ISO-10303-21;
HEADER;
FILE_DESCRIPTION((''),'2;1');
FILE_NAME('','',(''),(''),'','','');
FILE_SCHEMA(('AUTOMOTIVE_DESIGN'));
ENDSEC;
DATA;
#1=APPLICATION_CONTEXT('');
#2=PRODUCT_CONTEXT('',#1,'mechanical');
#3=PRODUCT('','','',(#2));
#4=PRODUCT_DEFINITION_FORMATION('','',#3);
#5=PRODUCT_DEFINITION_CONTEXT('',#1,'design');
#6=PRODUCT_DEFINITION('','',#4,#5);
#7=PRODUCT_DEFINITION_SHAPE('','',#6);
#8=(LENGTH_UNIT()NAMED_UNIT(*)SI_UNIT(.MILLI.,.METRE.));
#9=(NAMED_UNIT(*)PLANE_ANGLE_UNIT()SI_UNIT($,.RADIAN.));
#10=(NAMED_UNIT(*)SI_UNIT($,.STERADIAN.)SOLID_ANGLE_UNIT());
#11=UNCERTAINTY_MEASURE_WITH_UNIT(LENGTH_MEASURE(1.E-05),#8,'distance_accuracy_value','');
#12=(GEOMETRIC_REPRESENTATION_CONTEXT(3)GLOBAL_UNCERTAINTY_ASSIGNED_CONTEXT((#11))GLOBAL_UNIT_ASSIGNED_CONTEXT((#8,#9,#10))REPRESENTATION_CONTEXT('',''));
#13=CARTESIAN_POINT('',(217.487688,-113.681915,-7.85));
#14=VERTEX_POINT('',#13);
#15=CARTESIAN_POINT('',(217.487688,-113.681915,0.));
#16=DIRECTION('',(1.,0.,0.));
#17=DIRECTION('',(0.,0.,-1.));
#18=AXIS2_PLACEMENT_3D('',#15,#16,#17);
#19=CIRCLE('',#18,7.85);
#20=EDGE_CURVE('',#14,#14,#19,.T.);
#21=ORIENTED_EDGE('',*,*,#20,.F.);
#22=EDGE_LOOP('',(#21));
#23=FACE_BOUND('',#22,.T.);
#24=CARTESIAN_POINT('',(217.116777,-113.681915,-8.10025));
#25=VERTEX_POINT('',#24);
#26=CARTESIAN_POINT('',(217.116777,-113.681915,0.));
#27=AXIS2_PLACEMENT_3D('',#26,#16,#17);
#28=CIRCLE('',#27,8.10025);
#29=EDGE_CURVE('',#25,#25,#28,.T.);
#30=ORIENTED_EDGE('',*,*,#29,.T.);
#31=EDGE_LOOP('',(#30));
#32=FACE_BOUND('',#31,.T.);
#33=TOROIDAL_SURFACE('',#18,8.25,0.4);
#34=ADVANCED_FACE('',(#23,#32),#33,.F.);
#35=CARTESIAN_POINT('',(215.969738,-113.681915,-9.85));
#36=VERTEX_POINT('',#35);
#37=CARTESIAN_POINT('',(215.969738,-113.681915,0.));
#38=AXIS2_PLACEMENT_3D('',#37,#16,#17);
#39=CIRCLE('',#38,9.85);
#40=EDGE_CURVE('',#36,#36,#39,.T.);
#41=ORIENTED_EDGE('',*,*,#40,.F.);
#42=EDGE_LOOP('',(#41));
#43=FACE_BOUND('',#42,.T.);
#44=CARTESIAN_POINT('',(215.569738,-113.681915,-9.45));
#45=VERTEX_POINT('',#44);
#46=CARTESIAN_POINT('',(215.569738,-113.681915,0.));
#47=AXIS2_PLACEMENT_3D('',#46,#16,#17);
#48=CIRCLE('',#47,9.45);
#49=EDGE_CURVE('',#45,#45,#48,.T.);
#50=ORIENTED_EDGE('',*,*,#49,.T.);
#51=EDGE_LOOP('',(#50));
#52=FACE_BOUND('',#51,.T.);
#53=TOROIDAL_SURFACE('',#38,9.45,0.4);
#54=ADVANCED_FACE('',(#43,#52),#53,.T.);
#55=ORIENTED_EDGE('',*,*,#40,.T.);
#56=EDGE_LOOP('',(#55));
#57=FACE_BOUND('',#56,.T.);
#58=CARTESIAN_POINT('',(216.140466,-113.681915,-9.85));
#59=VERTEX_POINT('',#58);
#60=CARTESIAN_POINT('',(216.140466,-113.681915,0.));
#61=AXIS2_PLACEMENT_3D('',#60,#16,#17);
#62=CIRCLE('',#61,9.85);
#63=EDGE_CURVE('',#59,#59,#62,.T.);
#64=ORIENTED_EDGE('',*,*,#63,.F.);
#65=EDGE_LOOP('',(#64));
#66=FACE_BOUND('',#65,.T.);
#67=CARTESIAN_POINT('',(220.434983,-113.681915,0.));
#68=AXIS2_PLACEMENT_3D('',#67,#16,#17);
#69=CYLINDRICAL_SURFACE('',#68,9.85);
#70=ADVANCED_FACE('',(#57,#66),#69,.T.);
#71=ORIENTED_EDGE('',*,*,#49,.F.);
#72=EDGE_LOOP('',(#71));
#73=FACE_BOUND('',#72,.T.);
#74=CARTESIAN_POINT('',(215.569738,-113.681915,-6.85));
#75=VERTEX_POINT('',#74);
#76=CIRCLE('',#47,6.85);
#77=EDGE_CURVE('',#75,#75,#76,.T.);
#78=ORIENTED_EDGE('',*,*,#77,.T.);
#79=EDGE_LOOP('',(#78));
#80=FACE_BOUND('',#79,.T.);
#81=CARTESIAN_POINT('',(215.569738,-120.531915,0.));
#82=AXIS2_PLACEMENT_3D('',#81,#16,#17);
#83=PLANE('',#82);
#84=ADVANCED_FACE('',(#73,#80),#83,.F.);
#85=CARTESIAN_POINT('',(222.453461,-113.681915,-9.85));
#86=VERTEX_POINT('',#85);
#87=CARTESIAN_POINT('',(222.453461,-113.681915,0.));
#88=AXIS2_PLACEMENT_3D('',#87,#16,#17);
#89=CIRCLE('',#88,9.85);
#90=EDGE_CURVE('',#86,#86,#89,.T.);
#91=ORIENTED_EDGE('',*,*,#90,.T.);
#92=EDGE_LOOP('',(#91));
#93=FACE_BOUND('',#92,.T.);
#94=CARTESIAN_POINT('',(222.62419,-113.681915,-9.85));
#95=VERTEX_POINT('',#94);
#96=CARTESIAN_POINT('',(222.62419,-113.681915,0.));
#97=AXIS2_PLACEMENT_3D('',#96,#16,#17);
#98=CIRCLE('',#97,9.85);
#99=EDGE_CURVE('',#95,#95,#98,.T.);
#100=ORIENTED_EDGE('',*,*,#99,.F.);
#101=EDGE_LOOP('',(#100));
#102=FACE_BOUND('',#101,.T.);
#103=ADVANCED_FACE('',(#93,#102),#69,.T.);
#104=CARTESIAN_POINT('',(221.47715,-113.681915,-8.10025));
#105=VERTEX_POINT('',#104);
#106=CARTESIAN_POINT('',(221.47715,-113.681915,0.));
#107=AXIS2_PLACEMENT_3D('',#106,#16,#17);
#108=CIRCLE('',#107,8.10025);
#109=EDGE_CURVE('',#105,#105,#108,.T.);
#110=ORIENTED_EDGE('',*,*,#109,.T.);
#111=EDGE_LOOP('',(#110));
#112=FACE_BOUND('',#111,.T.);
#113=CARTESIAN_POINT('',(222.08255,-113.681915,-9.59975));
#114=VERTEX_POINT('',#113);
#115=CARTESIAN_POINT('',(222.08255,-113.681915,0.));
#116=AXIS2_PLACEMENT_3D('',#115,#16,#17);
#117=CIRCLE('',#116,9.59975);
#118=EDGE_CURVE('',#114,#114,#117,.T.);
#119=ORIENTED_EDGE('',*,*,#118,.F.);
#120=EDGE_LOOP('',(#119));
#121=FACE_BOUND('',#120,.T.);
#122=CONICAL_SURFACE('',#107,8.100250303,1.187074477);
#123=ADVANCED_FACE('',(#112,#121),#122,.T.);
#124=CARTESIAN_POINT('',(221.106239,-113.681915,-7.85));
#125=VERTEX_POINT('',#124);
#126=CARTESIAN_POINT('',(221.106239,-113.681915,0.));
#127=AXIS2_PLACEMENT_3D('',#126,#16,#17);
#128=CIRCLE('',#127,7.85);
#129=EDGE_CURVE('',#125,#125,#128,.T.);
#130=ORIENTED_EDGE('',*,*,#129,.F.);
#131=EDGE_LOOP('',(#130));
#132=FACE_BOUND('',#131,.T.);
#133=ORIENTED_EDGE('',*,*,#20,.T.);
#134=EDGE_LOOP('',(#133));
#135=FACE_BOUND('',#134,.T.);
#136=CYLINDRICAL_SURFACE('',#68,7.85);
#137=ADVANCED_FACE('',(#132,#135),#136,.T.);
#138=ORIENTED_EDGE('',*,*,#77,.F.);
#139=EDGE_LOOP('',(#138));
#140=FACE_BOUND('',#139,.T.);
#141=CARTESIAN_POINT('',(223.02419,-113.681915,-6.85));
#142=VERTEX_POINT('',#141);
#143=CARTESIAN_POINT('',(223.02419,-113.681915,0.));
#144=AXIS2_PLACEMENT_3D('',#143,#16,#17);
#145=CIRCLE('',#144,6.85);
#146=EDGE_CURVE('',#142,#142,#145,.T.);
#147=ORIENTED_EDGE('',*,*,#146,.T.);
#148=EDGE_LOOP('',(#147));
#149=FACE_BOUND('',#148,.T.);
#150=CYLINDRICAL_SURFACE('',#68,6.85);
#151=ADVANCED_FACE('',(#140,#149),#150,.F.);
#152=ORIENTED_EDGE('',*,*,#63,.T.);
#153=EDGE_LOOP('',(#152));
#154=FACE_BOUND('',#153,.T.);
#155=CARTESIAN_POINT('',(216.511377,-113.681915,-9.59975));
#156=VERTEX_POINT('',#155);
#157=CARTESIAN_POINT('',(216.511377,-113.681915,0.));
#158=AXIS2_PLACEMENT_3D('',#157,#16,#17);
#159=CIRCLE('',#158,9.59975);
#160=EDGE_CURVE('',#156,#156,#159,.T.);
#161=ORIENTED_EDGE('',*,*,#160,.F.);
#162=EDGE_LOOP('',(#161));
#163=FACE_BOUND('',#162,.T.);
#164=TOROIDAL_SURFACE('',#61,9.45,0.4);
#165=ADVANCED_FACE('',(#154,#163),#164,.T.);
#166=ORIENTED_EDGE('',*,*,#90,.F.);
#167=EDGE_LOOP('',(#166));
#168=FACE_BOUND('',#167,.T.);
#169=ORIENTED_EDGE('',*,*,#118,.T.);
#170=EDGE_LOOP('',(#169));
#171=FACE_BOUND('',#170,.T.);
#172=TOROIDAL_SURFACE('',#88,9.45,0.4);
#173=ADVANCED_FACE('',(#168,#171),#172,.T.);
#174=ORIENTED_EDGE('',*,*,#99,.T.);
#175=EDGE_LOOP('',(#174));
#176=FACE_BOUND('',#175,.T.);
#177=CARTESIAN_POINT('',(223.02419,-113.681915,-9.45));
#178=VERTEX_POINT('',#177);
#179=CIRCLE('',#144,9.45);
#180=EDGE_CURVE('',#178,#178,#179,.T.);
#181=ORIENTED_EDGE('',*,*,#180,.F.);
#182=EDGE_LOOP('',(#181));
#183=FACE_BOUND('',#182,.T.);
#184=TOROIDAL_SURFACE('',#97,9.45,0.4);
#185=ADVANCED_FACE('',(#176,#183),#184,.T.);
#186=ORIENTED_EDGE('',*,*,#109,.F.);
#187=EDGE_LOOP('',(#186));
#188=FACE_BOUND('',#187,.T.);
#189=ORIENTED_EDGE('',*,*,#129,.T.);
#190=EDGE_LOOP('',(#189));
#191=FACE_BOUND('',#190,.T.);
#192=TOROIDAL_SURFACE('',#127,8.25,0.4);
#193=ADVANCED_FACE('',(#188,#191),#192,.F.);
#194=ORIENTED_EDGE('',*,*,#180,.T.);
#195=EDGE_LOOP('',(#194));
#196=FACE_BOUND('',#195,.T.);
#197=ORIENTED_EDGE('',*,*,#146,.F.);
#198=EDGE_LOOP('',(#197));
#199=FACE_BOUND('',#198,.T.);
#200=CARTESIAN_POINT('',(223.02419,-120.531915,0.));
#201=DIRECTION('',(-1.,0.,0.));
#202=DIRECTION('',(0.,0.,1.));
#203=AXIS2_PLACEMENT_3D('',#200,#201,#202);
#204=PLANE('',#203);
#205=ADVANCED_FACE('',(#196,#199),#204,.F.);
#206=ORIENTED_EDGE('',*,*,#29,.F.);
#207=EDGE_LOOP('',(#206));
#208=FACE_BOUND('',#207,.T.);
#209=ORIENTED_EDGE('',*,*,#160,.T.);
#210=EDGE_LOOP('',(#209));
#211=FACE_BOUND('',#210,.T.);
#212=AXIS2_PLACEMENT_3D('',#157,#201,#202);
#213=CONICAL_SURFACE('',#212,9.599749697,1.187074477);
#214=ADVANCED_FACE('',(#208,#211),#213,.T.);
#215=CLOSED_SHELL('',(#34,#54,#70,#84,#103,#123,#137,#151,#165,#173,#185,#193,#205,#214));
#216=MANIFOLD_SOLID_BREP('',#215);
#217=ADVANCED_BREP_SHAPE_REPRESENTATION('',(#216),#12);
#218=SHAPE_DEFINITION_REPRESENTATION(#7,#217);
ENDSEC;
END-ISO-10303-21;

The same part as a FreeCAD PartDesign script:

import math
import FreeCAD as App
import Part
import Sketcher

doc = App.newDocument("Part")
params = doc.addObject("Spreadsheet::Sheet", "Params")
for row, (alias, value) in enumerate([
    ("sketch1_radius", "0.4 mm"),
    ("sketch1_height", "2.6 mm"),
    ("revolution_angle", "360 deg"),
], start=1):
    params.set(f"A{row}", alias)
    params.set(f"B{row}", "=" + value)
    params.setAlias(f"B{row}", alias)

body = doc.addObject("PartDesign::Body", "Body")

# Sketch on XY plane
sketch1 = body.newObject("Sketcher::SketchObject", "Sketch")
sketch1.AttachmentSupport = (doc.getObject("XY_Plane"), [""])
sketch1.MapMode = "FlatFace"
sketch1.addGeometry([
    Part.LineSegment(App.Vector(223.02, -120.53, 0), App.Vector(215.57, -120.53, 0)),  # 0
    Part.LineSegment(App.Vector(215.57, -120.53, 0), App.Vector(215.57, -123.13, 0)),  # 1
    Part.ArcOfCircle(Part.Circle(App.Vector(215.97, -123.13, 0), App.Vector(0, 0, 1), 0.4), math.radians(180), math.radians(270)),  # 2
    Part.LineSegment(App.Vector(215.97, -123.53, 0), App.Vector(216.14, -123.53, 0)),  # 3
    Part.ArcOfCircle(Part.Circle(App.Vector(216.14, -123.13, 0), App.Vector(0, 0, 1), 0.4), math.radians(-90), math.radians(-22)),  # 4
    Part.LineSegment(App.Vector(216.51, -123.28, 0), App.Vector(217.12, -121.78, 0)),  # 5
    Part.ArcOfCircle(Part.Circle(App.Vector(217.49, -121.93, 0), App.Vector(0, 0, 1), 0.4), math.radians(90), math.radians(158)),  # 6
    Part.LineSegment(App.Vector(217.49, -121.53, 0), App.Vector(221.11, -121.53, 0)),  # 7
    Part.ArcOfCircle(Part.Circle(App.Vector(221.11, -121.93, 0), App.Vector(0, 0, 1), 0.4), math.radians(22), math.radians(90)),  # 8
    Part.LineSegment(App.Vector(221.48, -121.78, 0), App.Vector(222.08, -123.28, 0)),  # 9
    Part.ArcOfCircle(Part.Circle(App.Vector(222.45, -123.13, 0), App.Vector(0, 0, 1), 0.4), math.radians(-158), math.radians(-90)),  # 10
    Part.LineSegment(App.Vector(222.45, -123.53, 0), App.Vector(222.62, -123.53, 0)),  # 11
    Part.ArcOfCircle(Part.Circle(App.Vector(222.62, -123.13, 0), App.Vector(0, 0, 1), 0.4), math.radians(-90), math.radians(0)),  # 12
    Part.LineSegment(App.Vector(223.02, -123.13, 0), App.Vector(223.02, -120.53, 0)),  # 13
], False)
sketch1.addGeometry(Part.LineSegment(App.Vector(223.02, -113.68, 0), App.Vector(215.57, -113.68, 0)), True)  # axis
sketch1.addConstraint([
    Sketcher.Constraint("Coincident", 0, 2, 1, 1),
    Sketcher.Constraint("Tangent", 1, 2, 2, 1),
    Sketcher.Constraint("Tangent", 2, 2, 3, 1),
    Sketcher.Constraint("Tangent", 3, 2, 4, 1),
    Sketcher.Constraint("Tangent", 4, 2, 5, 1),
    Sketcher.Constraint("Tangent", 5, 2, 6, 2),
    Sketcher.Constraint("Tangent", 6, 1, 7, 1),
    Sketcher.Constraint("Tangent", 7, 2, 8, 2),
    Sketcher.Constraint("Tangent", 8, 1, 9, 1),
    Sketcher.Constraint("Tangent", 9, 2, 10, 1),
    Sketcher.Constraint("Tangent", 10, 2, 11, 1),
    Sketcher.Constraint("Tangent", 11, 2, 12, 1),
    Sketcher.Constraint("Tangent", 12, 2, 13, 1),
    Sketcher.Constraint("Coincident", 13, 2, 0, 1),
    Sketcher.Constraint("Horizontal", 0),
    Sketcher.Constraint("Vertical", 1),
    Sketcher.Constraint("Horizontal", 3),
    Sketcher.Constraint("Horizontal", 7),
    Sketcher.Constraint("Horizontal", 11),
    Sketcher.Constraint("Vertical", 13),
    Sketcher.Constraint("Horizontal", 14),
    Sketcher.Constraint("Equal", 2, 4),
    Sketcher.Constraint("Equal", 4, 6),
    Sketcher.Constraint("Equal", 6, 8),
    Sketcher.Constraint("Equal", 8, 10),
    Sketcher.Constraint("Equal", 10, 12),
    Sketcher.Constraint("Horizontal", 4, 3, 10, 3),
    Sketcher.Constraint("Horizontal", 5, 2, 8, 1),
    Sketcher.Constraint("Vertical", 13, 2, 14, 1),
    Sketcher.Constraint("Vertical", 1, 2, 14, 2),
    Sketcher.Constraint("Equal", 3, 11),
    Sketcher.Constraint("Radius", 2, 0.4),
    Sketcher.Constraint("DistanceY", 1, 2, 1, 1, 2.6),
    Sketcher.Constraint("DistanceY", 6, 1, 0, 2, 1.0),
    Sketcher.Constraint("DistanceY", 13, 2, 14, 1, 6.85),
    Sketcher.Constraint("Distance", 5, 1.617099),
    Sketcher.Constraint("DistanceX", 0, 2, 0, 1, 7.454452),
    Sketcher.Constraint("DistanceX", 3, 1, 3, 2, 0.170728),
    Sketcher.Constraint("DistanceX", -1, 1, 6, 3, 217.487688),
    Sketcher.Constraint("DistanceY", 2, 3, -1, 1, 123.131915),
])
sketch1.setExpression("Constraints[31]", "Params.sketch1_radius")
sketch1.setExpression("Constraints[32]", "Params.sketch1_height")
revolution = body.newObject("PartDesign::Revolution", "Revolution")
revolution.Profile = sketch1
revolution.ReferenceAxis = (sketch1, ["Axis0"])
revolution.setExpression("Angle", "Params.revolution_angle")

doc.recompute()
